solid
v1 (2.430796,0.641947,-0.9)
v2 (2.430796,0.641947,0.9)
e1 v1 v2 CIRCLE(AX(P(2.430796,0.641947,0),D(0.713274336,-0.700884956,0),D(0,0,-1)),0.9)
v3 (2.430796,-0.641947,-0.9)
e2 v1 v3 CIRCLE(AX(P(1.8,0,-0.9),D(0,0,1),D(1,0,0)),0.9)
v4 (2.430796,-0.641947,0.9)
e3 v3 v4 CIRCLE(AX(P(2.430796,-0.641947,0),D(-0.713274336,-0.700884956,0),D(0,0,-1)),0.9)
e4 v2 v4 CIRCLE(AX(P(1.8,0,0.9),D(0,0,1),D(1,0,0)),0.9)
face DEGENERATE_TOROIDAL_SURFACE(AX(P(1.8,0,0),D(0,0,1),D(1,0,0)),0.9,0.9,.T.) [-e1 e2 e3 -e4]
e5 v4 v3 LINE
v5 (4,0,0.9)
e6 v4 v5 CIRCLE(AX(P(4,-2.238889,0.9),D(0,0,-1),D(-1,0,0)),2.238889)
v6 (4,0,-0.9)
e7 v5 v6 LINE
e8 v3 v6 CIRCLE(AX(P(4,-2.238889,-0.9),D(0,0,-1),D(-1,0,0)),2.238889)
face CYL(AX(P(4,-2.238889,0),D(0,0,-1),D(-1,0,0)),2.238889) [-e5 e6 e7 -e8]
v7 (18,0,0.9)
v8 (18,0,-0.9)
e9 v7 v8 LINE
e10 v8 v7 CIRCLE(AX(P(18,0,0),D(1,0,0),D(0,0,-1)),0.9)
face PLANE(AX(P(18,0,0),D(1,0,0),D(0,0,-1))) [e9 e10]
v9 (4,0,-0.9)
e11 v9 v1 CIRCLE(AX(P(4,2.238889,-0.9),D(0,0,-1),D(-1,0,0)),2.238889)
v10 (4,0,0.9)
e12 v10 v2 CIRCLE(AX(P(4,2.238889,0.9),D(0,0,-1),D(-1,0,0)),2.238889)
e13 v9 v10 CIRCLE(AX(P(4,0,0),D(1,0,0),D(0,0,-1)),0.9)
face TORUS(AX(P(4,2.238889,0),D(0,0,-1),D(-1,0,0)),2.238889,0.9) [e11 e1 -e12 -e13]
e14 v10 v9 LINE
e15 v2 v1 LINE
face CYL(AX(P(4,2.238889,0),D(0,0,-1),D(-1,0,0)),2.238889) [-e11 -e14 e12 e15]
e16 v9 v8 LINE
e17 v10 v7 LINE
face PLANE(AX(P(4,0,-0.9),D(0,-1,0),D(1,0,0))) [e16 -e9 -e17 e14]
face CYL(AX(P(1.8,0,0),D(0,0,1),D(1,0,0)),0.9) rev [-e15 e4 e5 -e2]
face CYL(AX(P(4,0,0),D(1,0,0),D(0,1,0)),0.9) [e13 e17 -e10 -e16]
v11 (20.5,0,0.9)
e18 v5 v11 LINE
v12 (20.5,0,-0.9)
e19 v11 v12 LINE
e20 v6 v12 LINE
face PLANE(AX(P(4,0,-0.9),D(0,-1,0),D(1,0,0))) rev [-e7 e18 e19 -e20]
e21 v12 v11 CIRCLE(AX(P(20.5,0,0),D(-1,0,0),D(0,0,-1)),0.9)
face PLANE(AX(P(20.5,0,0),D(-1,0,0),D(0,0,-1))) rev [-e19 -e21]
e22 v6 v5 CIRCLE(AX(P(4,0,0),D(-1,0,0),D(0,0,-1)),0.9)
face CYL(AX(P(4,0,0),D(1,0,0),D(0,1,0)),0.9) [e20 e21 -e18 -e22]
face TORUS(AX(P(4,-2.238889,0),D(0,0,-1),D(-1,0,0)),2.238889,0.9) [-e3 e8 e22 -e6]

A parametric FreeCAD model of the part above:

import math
import FreeCAD as App
import Part
import Sketcher
from FreeCAD import Vector

doc = App.newDocument("Part")
params = doc.addObject("Spreadsheet::Sheet", "Params")
for row, (alias, value) in enumerate([
    ("sketch1_radius", "0.9 mm"),
    ("sketch2_radius", "1.8 mm"),
    ("sketch2_width", "14 mm"),
    ("sketch2_width2", "16.5 mm"),
], start=1):
    params.set(f"A{row}", alias)
    params.set(f"B{row}", "=" + value)
    params.setAlias(f"B{row}", alias)

body = doc.addObject("PartDesign::Body", "Body")

sketch1 = body.newObject("Sketcher::SketchObject", "Sketch")
sketch1.AttachmentSupport = (doc.getObject("YZ_Plane"), [""])
sketch1.MapMode = "FlatFace"
sketch1.AttachmentOffset = App.Placement(Vector(0, 0, 18), App.Rotation())
sketch1.addGeometry([
    Part.LineSegment(Vector(0, 0.9, 0), Vector(0, -0.9, 0)),
    Part.ArcOfCircle(Part.Circle(Vector(0, 0, 0), Vector(0, 0, 1), 0.9), math.radians(-90), math.radians(90)),
], False)
sketch1.addConstraint([
    Sketcher.Constraint("Coincident", 0, 1, 1, 2),
    Sketcher.Constraint("Coincident", 1, 1, 0, 2),
    Sketcher.Constraint("Vertical", 0),
    Sketcher.Constraint("Coincident", 1, 3, -1, 1),
    Sketcher.Constraint("PointOnObject", 0, 1, -2),
    Sketcher.Constraint("Radius", 1, 0.9),
])
sketch1.setExpression("Constraints[5]", "Params.sketch1_radius")

sketch2 = body.newObject("Sketcher::SketchObject", "Sketch001")
sketch2.AttachmentSupport = (doc.getObject("XY_Plane"), [""])
sketch2.MapMode = "FlatFace"
sketch2.addGeometry([
    Part.LineSegment(Vector(18, 0.9, 0), Vector(4, 0.9, 0)),
    Part.ArcOfCircle(Part.Circle(Vector(4, 2.2, 0), Vector(0, 0, 1), 1.3), math.radians(-134), math.radians(-90)),
    Part.ArcOfCircle(Part.Circle(Vector(1.8, 0, 0), Vector(0, 0, 1), 1.8), math.radians(46), math.radians(314)),
    Part.ArcOfCircle(Part.Circle(Vector(4, -2.2, 0), Vector(0, 0, 1), 1.3), math.radians(90), math.radians(134)),
    Part.LineSegment(Vector(4, -0.9, 0), Vector(20.5, -0.9, 0)),
], False)
sketch2.addConstraint([
    Sketcher.Constraint("Tangent", 0, 2, 1, 2),
    Sketcher.Constraint("Tangent", 1, 1, 2, 1),
    Sketcher.Constraint("Tangent", 2, 2, 3, 2),
    Sketcher.Constraint("Tangent", 3, 1, 4, 1),
    Sketcher.Constraint("Horizontal", 0),
    Sketcher.Constraint("Horizontal", 4),
    Sketcher.Constraint("Equal", 1, 3),
    Sketcher.Constraint("Symmetric", 1, 3, 3, 3, -1),
    Sketcher.Constraint("Radius", 2, 1.8),
    Sketcher.Constraint("DistanceX", 0, 2, 0, 1, 14.0),
    Sketcher.Constraint("DistanceX", 4, 1, 4, 2, 16.5),
    Sketcher.Constraint("DistanceX", -1, 1, 1, 3, 4.0),
    Sketcher.Constraint("DistanceX", -1, 1, 2, 3, 1.8),
    Sketcher.Constraint("DistanceY", -1, 1, 0, 1, 0.9),
])
sketch2.setExpression("Constraints[8]", "Params.sketch2_radius")
sketch2.setExpression("Constraints[9]", "Params.sketch2_width")
sketch2.setExpression("Constraints[10]", "Params.sketch2_width2")
doc.recompute()

additivepipe = body.newObject("PartDesign::AdditivePipe", "AdditivePipe")
additivepipe.Profile = sketch1
additivepipe.Spine = (sketch2, ["Edge1", "Edge2", "Edge3", "Edge4", "Edge5"])

doc.recompute()
